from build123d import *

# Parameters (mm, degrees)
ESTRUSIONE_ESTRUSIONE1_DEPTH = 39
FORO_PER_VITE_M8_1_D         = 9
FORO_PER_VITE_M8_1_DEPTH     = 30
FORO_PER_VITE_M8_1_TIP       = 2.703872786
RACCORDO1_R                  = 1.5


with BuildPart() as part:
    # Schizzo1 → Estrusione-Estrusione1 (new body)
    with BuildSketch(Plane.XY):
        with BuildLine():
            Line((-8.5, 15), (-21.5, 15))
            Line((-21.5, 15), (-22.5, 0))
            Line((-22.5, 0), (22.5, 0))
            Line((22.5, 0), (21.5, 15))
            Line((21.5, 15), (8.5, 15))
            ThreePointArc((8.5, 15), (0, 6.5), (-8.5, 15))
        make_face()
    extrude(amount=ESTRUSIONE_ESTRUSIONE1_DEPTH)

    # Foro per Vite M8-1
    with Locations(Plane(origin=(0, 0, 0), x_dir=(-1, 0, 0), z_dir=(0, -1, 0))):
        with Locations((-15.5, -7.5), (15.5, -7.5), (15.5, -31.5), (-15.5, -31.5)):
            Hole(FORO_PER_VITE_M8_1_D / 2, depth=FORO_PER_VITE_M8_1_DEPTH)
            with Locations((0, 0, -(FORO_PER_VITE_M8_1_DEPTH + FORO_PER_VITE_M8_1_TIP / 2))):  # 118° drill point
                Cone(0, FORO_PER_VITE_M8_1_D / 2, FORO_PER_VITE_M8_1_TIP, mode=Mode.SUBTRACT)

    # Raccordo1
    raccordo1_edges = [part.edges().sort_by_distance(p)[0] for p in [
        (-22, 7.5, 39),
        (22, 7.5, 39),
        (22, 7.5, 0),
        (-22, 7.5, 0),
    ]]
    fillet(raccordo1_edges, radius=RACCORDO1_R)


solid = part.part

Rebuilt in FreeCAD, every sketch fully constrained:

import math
import FreeCAD as App
import Part
import Sketcher


def edges_at(feature, points):
    """Names of the edges that pass closest to the given points."""
    edges = feature.Shape.Edges
    near = lambda p: min(range(len(edges)), key=lambda i: edges[i].distToShape(Part.Vertex(*p))[0])
    return sorted({f"Edge{near(p) + 1}" for p in points})

doc = App.newDocument("Part")
body = doc.addObject("PartDesign::Body", "Body")

sketch1 = doc.addObject("Sketcher::SketchObject", "Sketch")
body.addObject(sketch1)
sketch1.AttachmentSupport = (doc.XY_Plane, [""])
sketch1.MapMode = "FlatFace"
sketch1.addGeometry([
    Part.LineSegment(App.Vector(-8, 15, 0), App.Vector(-22, 15, 0)),
    Part.LineSegment(App.Vector(-22, 15, 0), App.Vector(-22, 0, 0)),
    Part.LineSegment(App.Vector(-22, 0, 0), App.Vector(22, 0, 0)),
    Part.LineSegment(App.Vector(22, 0, 0), App.Vector(22, 15, 0)),
    Part.LineSegment(App.Vector(22, 15, 0), App.Vector(8, 15, 0)),
    Part.ArcOfCircle(Part.Circle(App.Vector(0, 15, 0), App.Vector(0, 0, 1), 8), math.radians(180), math.radians(360)),
], False)
sketch1.addConstraint([
    Sketcher.Constraint("Coincident", 0, 2, 1, 1),
    Sketcher.Constraint("Coincident", 1, 2, 2, 1),
    Sketcher.Constraint("Coincident", 2, 2, 3, 1),
    Sketcher.Constraint("Coincident", 3, 2, 4, 1),
    Sketcher.Constraint("Coincident", 4, 2, 5, 2),
    Sketcher.Constraint("Coincident", 5, 1, 0, 1),
    Sketcher.Constraint("Horizontal", 0),
    Sketcher.Constraint("Horizontal", 2),
    Sketcher.Constraint("Horizontal", 4),
    Sketcher.Constraint("Symmetric", 1, 2, 2, 2, -1, 1),
    Sketcher.Constraint("Symmetric", 0, 2, 3, 2, -2),
    Sketcher.Constraint("PointOnObject", 5, 3, -2),
    Sketcher.Constraint("Horizontal", 5, 3, 0, 2),
    Sketcher.Constraint("Radius", 5, 8.5),
    Sketcher.Constraint("DistanceX", 0, 2, 0, 1, 13.0),
    Sketcher.Constraint("DistanceX", 2, 1, 2, 2, 45.0),
    Sketcher.Constraint("DistanceY", -1, 1, 5, 3, 15.0),
])
pad1 = doc.addObject("PartDesign::Pad", "Pad")
body.addObject(pad1)
pad1.Profile = sketch1
pad1.Length = 39

sketch2 = doc.addObject("Sketcher::SketchObject", "Sketch001")
body.addObject(sketch2)
sketch2.AttachmentSupport = (doc.XZ_Plane, [""])
sketch2.MapMode = "FlatFace"
sketch2.addGeometry([
    Part.Circle(App.Vector(15.5, 7.5, 0), App.Vector(0, 0, 1), 4.5),
    Part.Circle(App.Vector(-15.5, 7.5, 0), App.Vector(0, 0, 1), 4.5),
    Part.Circle(App.Vector(-15.5, 31.5, 0), App.Vector(0, 0, 1), 4.5),
    Part.Circle(App.Vector(15.5, 31.5, 0), App.Vector(0, 0, 1), 4.5),
], False)
sketch2.addConstraint([
    Sketcher.Constraint("Equal", 0, 1),
    Sketcher.Constraint("Equal", 1, 2),
    Sketcher.Constraint("Equal", 2, 3),
    Sketcher.Constraint("Symmetric", 0, 3, 1, 3, -2),
    Sketcher.Constraint("Symmetric", 2, 3, 3, 3, -2),
    Sketcher.Constraint("Vertical", 1, 3, 2, 3),
    Sketcher.Constraint("Diameter", 0, 9.0),
    Sketcher.Constraint("DistanceX", 1, 3, 0, 3, 31.0),
    Sketcher.Constraint("DistanceY", 1, 3, 2, 3, 24.0),
    Sketcher.Constraint("DistanceY", -1, 1, 0, 3, 7.5),
])
doc.recompute()
hole = doc.addObject("PartDesign::Hole", "Hole")
body.addObject(hole)
hole.Profile = sketch2
hole.ThreadType = "None"
hole.Diameter = 9
hole.DepthType = "Dimension"
hole.Depth = 30
hole.DrillPoint = "Angled"
hole.DrillPointAngle = 118
doc.recompute()

fillet = doc.addObject("PartDesign::Fillet", "Fillet")
body.addObject(fillet)
fillet.Base = (hole, edges_at(hole, [
    (-22, 7.5, 39),
    (22, 7.5, 39),
    (22, 7.5, 0),
    (-22, 7.5, 0),
]))
fillet.Radius = 1.5

doc.recompute()
